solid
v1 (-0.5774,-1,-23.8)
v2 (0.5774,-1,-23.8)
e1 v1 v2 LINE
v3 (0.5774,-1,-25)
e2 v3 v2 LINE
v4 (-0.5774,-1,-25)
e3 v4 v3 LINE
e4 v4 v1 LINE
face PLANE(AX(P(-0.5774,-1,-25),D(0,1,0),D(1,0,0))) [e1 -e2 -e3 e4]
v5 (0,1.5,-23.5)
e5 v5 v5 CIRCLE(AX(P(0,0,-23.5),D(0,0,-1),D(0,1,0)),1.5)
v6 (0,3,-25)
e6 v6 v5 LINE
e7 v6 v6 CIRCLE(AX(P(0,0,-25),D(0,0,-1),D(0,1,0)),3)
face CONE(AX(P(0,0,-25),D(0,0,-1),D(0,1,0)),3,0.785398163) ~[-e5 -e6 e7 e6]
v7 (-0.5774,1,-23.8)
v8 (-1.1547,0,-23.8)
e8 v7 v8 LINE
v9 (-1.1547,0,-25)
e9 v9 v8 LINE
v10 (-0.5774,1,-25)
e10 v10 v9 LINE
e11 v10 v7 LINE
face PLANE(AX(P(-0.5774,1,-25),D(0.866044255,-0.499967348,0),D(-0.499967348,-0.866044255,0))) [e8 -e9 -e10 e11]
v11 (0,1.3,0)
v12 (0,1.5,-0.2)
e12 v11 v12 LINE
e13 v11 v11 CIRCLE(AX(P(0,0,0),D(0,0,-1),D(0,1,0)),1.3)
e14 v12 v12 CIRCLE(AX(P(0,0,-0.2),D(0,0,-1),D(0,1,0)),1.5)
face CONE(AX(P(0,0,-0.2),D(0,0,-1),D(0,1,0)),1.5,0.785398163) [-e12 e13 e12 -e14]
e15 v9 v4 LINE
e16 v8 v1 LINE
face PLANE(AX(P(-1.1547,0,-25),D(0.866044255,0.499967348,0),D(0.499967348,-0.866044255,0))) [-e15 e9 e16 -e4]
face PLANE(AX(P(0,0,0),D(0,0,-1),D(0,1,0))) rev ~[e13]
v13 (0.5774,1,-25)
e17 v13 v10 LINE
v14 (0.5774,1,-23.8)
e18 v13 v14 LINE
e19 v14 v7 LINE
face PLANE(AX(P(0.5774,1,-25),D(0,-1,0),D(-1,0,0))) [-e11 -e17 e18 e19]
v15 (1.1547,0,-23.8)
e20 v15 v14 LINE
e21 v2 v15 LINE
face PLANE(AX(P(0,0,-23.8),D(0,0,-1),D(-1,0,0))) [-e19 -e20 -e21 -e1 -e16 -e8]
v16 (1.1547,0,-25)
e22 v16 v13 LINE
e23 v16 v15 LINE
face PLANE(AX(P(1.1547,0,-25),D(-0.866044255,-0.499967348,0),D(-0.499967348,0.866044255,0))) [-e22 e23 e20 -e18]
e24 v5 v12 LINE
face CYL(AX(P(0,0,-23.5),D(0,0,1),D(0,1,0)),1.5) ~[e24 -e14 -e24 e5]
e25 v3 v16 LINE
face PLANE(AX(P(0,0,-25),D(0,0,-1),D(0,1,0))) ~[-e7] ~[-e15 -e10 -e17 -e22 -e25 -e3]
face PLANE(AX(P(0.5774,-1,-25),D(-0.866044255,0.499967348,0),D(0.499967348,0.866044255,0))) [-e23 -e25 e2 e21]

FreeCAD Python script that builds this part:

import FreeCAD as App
import Part
import Sketcher
from FreeCAD import Vector
Q = App.Units.Quantity


def edges_at(feature, points):
    """Names of the edges that pass closest to the given points."""
    edges = feature.Shape.Edges
    near = lambda p: min(range(len(edges)), key=lambda i: edges[i].distToShape(Part.Vertex(*p))[0])
    return sorted({f"Edge{near(p) + 1}" for p in points})


def add_polygon(sketch, points):
    """Adds a closed chain of lines whose ends are joined by coincident constraints."""
    first, n = sketch.GeometryCount, len(points)
    for a, b in zip(points, points[1:] + points[:1]):
        sketch.addGeometry(Part.LineSegment(App.Vector(*a, 0), App.Vector(*b, 0)), False)
    for i in range(n):
        sketch.addConstraint(Sketcher.Constraint("Coincident", first + i, 2, first + (i + 1) % n, 1))

doc = App.newDocument("Part")
body = doc.addObject("PartDesign::Body", "Body")

# Sketch on YZ plane
sketch1 = body.newObject("Sketcher::SketchObject", "Sketch")
sketch1.AttachmentSupport = (doc.getObject("YZ_Plane"), [""])
sketch1.MapMode = "FlatFace"
add_polygon(sketch1, [(1.5, 0), (0, 0), (0, -25), (3, -25), (1.5, -23.5)])  # lines 0-4
sketch1.addConstraint(Sketcher.Constraint("Horizontal", 0))
sketch1.addConstraint(Sketcher.Constraint("Vertical", 1))
sketch1.addConstraint(Sketcher.Constraint("Horizontal", 2))
sketch1.addConstraint(Sketcher.Constraint("Vertical", 4))
sketch1.addConstraint(Sketcher.Constraint("Coincident", 0, 2, -1, 1))
sketch1.addConstraint(Sketcher.Constraint("DistanceX", 2, 1, 2, 2, Q("3 mm")))
sketch1.addConstraint(Sketcher.Constraint("DistanceY", 1, 2, 1, 1, Q("25 mm")))
sketch1.addConstraint(Sketcher.Constraint("Angle", 3, Q("135 deg")))
sketch1.addConstraint(Sketcher.Constraint("DistanceX", 0, 2, 0, 1, Q("1.5 mm")))
revolution = body.newObject("PartDesign::Revolution", "Revolution")
revolution.Profile = sketch1
revolution.ReferenceAxis = (sketch1, ["V_Axis"])
revolution.Angle = 360
doc.recompute()

chamfer = body.newObject("PartDesign::Chamfer", "Chamfer")
chamfer.Base = (revolution, edges_at(revolution, [(0, -1.5, 0)]))
chamfer.Size = 0.2

# Sketch on XY plane
sketch2 = body.newObject("Sketcher::SketchObject", "Sketch001")
sketch2.AttachmentSupport = (doc.getObject("XY_Plane"), [""])
sketch2.MapMode = "FlatFace"
sketch2.AttachmentOffset = App.Placement(Vector(0, 0, -25), App.Rotation())
add_polygon(sketch2, [(-0.5774, -1), (-1.1547, 0), (-0.5774, 1), (0.5774, 1), (1.1547, 0), (0.5774, -1)])  # lines 0-5
sketch2.addConstraint(Sketcher.Constraint("Horizontal", 2))
sketch2.addConstraint(Sketcher.Constraint("Horizontal", 5))
sketch2.addConstraint(Sketcher.Constraint("Symmetric", 0, 2, 3, 2, -1, 1))
sketch2.addConstraint(Sketcher.Constraint("Symmetric", 1, 2, 4, 2, -1, 1))
sketch2.addConstraint(Sketcher.Constraint("PointOnObject", 0, 2, -1))
sketch2.addConstraint(Sketcher.Constraint("Parallel", 0, 3))
sketch2.addConstraint(Sketcher.Constraint("Vertical", 2, 2, 4, 2))
sketch2.addConstraint(Sketcher.Constraint("DistanceY", 4, 2, 2, 2, Q("2 mm")))
sketch2.addConstraint(Sketcher.Constraint("DistanceX", 2, 1, 2, 2, Q("1.1548 mm")))
sketch2.addConstraint(Sketcher.Constraint("DistanceX", 0, 2, 2, 2, Q("1.732 mm")))
pocket1 = body.newObject("PartDesign::Pocket", "Pocket")
pocket1.Profile = sketch2
pocket1.Length = 1.2
pocket1.Reversed = True

doc.recompute()
